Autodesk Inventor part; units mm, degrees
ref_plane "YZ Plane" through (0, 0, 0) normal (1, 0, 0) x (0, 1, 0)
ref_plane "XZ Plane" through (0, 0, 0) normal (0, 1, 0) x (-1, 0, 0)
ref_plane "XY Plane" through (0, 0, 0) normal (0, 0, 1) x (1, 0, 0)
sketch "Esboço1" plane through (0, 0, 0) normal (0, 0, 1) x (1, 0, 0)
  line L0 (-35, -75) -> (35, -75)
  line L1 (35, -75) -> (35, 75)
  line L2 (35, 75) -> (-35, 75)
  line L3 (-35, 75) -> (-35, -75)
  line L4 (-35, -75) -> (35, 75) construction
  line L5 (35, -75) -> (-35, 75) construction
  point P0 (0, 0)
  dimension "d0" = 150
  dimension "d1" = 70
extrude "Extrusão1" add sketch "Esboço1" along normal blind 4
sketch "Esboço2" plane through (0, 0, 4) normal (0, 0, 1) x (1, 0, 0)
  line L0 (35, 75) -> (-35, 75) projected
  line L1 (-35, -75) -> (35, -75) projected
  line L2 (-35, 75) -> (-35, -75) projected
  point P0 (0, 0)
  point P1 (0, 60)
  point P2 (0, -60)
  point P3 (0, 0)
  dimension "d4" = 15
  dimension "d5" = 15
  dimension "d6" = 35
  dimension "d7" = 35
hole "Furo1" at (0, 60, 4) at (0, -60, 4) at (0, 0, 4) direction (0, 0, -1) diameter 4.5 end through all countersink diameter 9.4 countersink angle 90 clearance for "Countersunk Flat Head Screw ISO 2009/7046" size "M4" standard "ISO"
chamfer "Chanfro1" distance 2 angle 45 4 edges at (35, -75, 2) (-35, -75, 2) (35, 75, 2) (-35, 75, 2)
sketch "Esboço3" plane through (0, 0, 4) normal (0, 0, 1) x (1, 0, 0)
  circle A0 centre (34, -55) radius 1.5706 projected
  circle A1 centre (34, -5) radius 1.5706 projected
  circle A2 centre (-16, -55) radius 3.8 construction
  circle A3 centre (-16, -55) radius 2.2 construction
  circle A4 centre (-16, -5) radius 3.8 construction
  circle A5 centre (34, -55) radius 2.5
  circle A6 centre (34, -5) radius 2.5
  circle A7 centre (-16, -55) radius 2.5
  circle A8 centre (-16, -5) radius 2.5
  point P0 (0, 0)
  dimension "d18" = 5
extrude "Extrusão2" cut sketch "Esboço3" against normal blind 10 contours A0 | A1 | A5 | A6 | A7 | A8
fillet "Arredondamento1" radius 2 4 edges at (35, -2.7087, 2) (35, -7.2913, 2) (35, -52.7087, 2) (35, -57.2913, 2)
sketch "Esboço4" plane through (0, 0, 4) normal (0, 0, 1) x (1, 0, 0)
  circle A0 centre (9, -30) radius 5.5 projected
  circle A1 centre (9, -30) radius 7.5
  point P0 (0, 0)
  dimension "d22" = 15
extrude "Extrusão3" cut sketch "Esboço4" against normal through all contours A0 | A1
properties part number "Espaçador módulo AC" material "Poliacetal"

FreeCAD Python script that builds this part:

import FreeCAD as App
import Part
import Sketcher
from FreeCAD import Vector


def edges_at(feature, points):
    """Names of the edges that pass closest to the given points."""
    edges = feature.Shape.Edges
    near = lambda p: min(range(len(edges)), key=lambda i: edges[i].distToShape(Part.Vertex(*p))[0])
    return sorted({f"Edge{near(p) + 1}" for p in points})

doc = App.newDocument("Part")
params = doc.addObject("Spreadsheet::Sheet", "Params")
for row, (alias, value) in enumerate([
    ("sketch1_width", "70 mm"),
    ("sketch1_height", "150 mm"),
    ("pad1_length", "4 mm"),
    ("sketch2_diameter", "4.5 mm"),
    ("hole_diameter", "4.5 mm"),
    ("hole_csink_diameter", "9.4 mm"),
    ("chamfer_size", "2 mm"),
    ("sketch3_diameter", "5 mm"),
    ("pocket1_length", "10 mm"),
    ("fillet_radius", "2 mm"),
    ("sketch4_diameter", "15 mm"),
], start=1):
    params.set(f"A{row}", alias)
    params.set(f"B{row}", "=" + value)
    params.setAlias(f"B{row}", alias)

body = doc.addObject("PartDesign::Body", "Body")

sketch1 = doc.addObject("Sketcher::SketchObject", "Sketch")
body.addObject(sketch1)
sketch1.AttachmentSupport = (doc.XY_Plane, [""])
sketch1.MapMode = "FlatFace"
sketch1.addGeometry([
    Part.LineSegment(Vector(-35, 75, 0), Vector(-35, -75, 0)),
    Part.LineSegment(Vector(-35, -75, 0), Vector(35, -75, 0)),
    Part.LineSegment(Vector(35, -75, 0), Vector(35, 75, 0)),
    Part.LineSegment(Vector(35, 75, 0), Vector(-35, 75, 0)),
], False)
sketch1.addConstraint([
    Sketcher.Constraint("Coincident", 0, 2, 1, 1),
    Sketcher.Constraint("Coincident", 1, 2, 2, 1),
    Sketcher.Constraint("Coincident", 2, 2, 3, 1),
    Sketcher.Constraint("Coincident", 3, 2, 0, 1),
    Sketcher.Constraint("Vertical", 0),
    Sketcher.Constraint("Horizontal", 1),
    Sketcher.Constraint("Vertical", 2),
    Sketcher.Constraint("Horizontal", 3),
    Sketcher.Constraint("Symmetric", 0, 2, 2, 2, -1, 1),
    Sketcher.Constraint("DistanceX", 1, 1, 1, 2, 70.0),
    Sketcher.Constraint("DistanceY", 0, 2, 0, 1, 150.0),
])
sketch1.setExpression("Constraints[9]", "Params.sketch1_width")
sketch1.setExpression("Constraints[10]", "Params.sketch1_height")
pad1 = doc.addObject("PartDesign::Pad", "Pad")
body.addObject(pad1)
pad1.Profile = sketch1
pad1.setExpression("Length", "Params.pad1_length")

sketch2 = doc.addObject("Sketcher::SketchObject", "Sketch001")
body.addObject(sketch2)
sketch2.AttachmentSupport = (doc.XY_Plane, [""])
sketch2.MapMode = "FlatFace"
sketch2.AttachmentOffset = App.Placement(Vector(0, 0, 4), App.Rotation())
sketch2.addGeometry([
    Part.Circle(Vector(0, 60, 0), Vector(0, 0, 1), 2.25),
    Part.Circle(Vector(0, -60, 0), Vector(0, 0, 1), 2.25),
    Part.Circle(Vector(0, 0, 0), Vector(0, 0, 1), 2.25),
], False)
sketch2.addConstraint([
    Sketcher.Constraint("Coincident", 2, 3, -1, 1),
    Sketcher.Constraint("Equal", 0, 1),
    Sketcher.Constraint("Equal", 1, 2),
    Sketcher.Constraint("Symmetric", 0, 3, 1, 3, -1, 1),
    Sketcher.Constraint("PointOnObject", 0, 3, -2),
    Sketcher.Constraint("Diameter", 0, 4.5),
    Sketcher.Constraint("DistanceY", -1, 1, 0, 3, 60.0),
])
sketch2.setExpression("Constraints[5]", "Params.sketch2_diameter")
doc.recompute()
hole = doc.addObject("PartDesign::Hole", "Hole")
body.addObject(hole)
hole.Profile = sketch2
hole.ThreadType = "None"
hole.setExpression("Diameter", "Params.hole_diameter")
hole.DepthType = "ThroughAll"
hole.HoleCutType = "Countersink"
hole.setExpression("HoleCutDiameter", "Params.hole_csink_diameter")
hole.HoleCutCountersinkAngle = 90
doc.recompute()

chamfer = doc.addObject("PartDesign::Chamfer", "Chamfer")
body.addObject(chamfer)
chamfer.Base = (hole, edges_at(hole, [
    (35, -75, 2),
    (-35, -75, 2),
    (35, 75, 2),
    (-35, 75, 2),
]))
chamfer.setExpression("Size", "Params.chamfer_size")

sketch3 = doc.addObject("Sketcher::SketchObject", "Sketch002")
body.addObject(sketch3)
sketch3.AttachmentSupport = (doc.XY_Plane, [""])
sketch3.MapMode = "FlatFace"
sketch3.AttachmentOffset = App.Placement(Vector(0, 0, 4), App.Rotation())
sketch3.addGeometry([
    Part.Circle(Vector(34, -55, 0), Vector(0, 0, 1), 2.5),
    Part.Circle(Vector(34, -5, 0), Vector(0, 0, 1), 2.5),
    Part.Circle(Vector(-16, -55, 0), Vector(0, 0, 1), 2.5),
    Part.Circle(Vector(-16, -5, 0), Vector(0, 0, 1), 2.5),
], False)
sketch3.addConstraint([
    Sketcher.Constraint("Equal", 0, 1),
    Sketcher.Constraint("Equal", 1, 2),
    Sketcher.Constraint("Equal", 2, 3),
    Sketcher.Constraint("Horizontal", 0, 3, 2, 3),
    Sketcher.Constraint("Horizontal", 1, 3, 3, 3),
    Sketcher.Constraint("Vertical", 0, 3, 1, 3),
    Sketcher.Constraint("Vertical", 2, 3, 3, 3),
    Sketcher.Constraint("Diameter", 0, 5.0),
    Sketcher.Constraint("DistanceY", 1, 3, -1, 1, 5.0),
    Sketcher.Constraint("DistanceX", -1, 1, 0, 3, 34.0),
    Sketcher.Constraint("DistanceY", 0, 3, -1, 1, 55.0),
    Sketcher.Constraint("DistanceX", 2, 3, -1, 1, 16.0),
])
sketch3.setExpression("Constraints[7]", "Params.sketch3_diameter")
pocket1 = doc.addObject("PartDesign::Pocket", "Pocket")
body.addObject(pocket1)
pocket1.Profile = sketch3
pocket1.setExpression("Length", "Params.pocket1_length")
doc.recompute()

fillet = doc.addObject("PartDesign::Fillet", "Fillet")
body.addObject(fillet)
fillet.Base = (pocket1, edges_at(pocket1, [
    (35, -2.709, 2),
    (35, -7.291, 2),
    (35, -52.709, 2),
    (35, -57.291, 2),
]))
fillet.setExpression("Radius", "Params.fillet_radius")

sketch4 = doc.addObject("Sketcher::SketchObject", "Sketch003")
body.addObject(sketch4)
sketch4.AttachmentSupport = (doc.XY_Plane, [""])
sketch4.MapMode = "FlatFace"
sketch4.AttachmentOffset = App.Placement(Vector(0, 0, 4), App.Rotation())
sketch4.addGeometry(Part.Circle(Vector(9, -30, 0), Vector(0, 0, 1), 7.5), False)
sketch4.addConstraint([
    Sketcher.Constraint("Diameter", 0, 15.0),
    Sketcher.Constraint("DistanceX", -1, 1, 0, 3, 9.0),
    Sketcher.Constraint("DistanceY", 0, 3, -1, 1, 30.0),
])
sketch4.setExpression("Constraints[0]", "Params.sketch4_diameter")
pocket2 = doc.addObject("PartDesign::Pocket", "Pocket001")
body.addObject(pocket2)
pocket2.Profile = sketch4
pocket2.Type = "ThroughAll"

doc.recompute()
